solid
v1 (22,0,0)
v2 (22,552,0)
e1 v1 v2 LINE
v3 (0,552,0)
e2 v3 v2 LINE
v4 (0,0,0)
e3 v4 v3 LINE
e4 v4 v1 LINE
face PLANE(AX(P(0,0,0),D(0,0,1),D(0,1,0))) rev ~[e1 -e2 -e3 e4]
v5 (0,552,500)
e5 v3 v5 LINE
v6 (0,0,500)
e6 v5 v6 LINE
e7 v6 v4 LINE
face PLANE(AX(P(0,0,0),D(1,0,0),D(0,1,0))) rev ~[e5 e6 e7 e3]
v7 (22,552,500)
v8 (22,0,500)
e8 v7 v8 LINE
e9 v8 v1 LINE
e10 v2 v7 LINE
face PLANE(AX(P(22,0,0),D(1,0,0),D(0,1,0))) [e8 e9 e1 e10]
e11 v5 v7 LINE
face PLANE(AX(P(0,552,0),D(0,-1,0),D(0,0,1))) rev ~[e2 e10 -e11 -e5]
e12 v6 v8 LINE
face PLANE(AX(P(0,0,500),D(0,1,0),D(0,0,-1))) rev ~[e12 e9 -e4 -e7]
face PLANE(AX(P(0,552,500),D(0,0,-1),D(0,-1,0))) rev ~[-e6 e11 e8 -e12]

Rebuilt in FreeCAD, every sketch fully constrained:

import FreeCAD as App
import Part
import Sketcher

doc = App.newDocument("Part")
body = doc.addObject("PartDesign::Body", "Body")

# Sketch on YZ plane
sketch1 = doc.addObject("Sketcher::SketchObject", "Sketch")
body.addObject(sketch1)
sketch1.AttachmentSupport = (doc.YZ_Plane, [""])
sketch1.MapMode = "FlatFace"
sketch1.addGeometry(Part.LineSegment(App.Vector(0, 500, 0), App.Vector(0, 0, 0)), False)
sketch1.addGeometry(Part.LineSegment(App.Vector(0, 0, 0), App.Vector(552, 0, 0)), False)
sketch1.addGeometry(Part.LineSegment(App.Vector(552, 0, 0), App.Vector(552, 500, 0)), False)
sketch1.addGeometry(Part.LineSegment(App.Vector(552, 500, 0), App.Vector(0, 500, 0)), False)
sketch1.addConstraint(Sketcher.Constraint("Coincident", 0, 2, 1, 1))
sketch1.addConstraint(Sketcher.Constraint("Coincident", 1, 2, 2, 1))
sketch1.addConstraint(Sketcher.Constraint("Coincident", 2, 2, 3, 1))
sketch1.addConstraint(Sketcher.Constraint("Coincident", 3, 2, 0, 1))
sketch1.addConstraint(Sketcher.Constraint("Vertical", 0))
sketch1.addConstraint(Sketcher.Constraint("Horizontal", 1))
sketch1.addConstraint(Sketcher.Constraint("Vertical", 2))
sketch1.addConstraint(Sketcher.Constraint("Horizontal", 3))
sketch1.addConstraint(Sketcher.Constraint("Coincident", 0, 2, -1, 1))
sketch1.addConstraint(Sketcher.Constraint("DistanceX", 1, 1, 1, 2, 552.0))
sketch1.addConstraint(Sketcher.Constraint("DistanceY", 0, 2, 0, 1, 500.0))
pad1 = doc.addObject("PartDesign::Pad", "Pad")
body.addObject(pad1)
pad1.Profile = sketch1
pad1.Length = 22

doc.recompute()
